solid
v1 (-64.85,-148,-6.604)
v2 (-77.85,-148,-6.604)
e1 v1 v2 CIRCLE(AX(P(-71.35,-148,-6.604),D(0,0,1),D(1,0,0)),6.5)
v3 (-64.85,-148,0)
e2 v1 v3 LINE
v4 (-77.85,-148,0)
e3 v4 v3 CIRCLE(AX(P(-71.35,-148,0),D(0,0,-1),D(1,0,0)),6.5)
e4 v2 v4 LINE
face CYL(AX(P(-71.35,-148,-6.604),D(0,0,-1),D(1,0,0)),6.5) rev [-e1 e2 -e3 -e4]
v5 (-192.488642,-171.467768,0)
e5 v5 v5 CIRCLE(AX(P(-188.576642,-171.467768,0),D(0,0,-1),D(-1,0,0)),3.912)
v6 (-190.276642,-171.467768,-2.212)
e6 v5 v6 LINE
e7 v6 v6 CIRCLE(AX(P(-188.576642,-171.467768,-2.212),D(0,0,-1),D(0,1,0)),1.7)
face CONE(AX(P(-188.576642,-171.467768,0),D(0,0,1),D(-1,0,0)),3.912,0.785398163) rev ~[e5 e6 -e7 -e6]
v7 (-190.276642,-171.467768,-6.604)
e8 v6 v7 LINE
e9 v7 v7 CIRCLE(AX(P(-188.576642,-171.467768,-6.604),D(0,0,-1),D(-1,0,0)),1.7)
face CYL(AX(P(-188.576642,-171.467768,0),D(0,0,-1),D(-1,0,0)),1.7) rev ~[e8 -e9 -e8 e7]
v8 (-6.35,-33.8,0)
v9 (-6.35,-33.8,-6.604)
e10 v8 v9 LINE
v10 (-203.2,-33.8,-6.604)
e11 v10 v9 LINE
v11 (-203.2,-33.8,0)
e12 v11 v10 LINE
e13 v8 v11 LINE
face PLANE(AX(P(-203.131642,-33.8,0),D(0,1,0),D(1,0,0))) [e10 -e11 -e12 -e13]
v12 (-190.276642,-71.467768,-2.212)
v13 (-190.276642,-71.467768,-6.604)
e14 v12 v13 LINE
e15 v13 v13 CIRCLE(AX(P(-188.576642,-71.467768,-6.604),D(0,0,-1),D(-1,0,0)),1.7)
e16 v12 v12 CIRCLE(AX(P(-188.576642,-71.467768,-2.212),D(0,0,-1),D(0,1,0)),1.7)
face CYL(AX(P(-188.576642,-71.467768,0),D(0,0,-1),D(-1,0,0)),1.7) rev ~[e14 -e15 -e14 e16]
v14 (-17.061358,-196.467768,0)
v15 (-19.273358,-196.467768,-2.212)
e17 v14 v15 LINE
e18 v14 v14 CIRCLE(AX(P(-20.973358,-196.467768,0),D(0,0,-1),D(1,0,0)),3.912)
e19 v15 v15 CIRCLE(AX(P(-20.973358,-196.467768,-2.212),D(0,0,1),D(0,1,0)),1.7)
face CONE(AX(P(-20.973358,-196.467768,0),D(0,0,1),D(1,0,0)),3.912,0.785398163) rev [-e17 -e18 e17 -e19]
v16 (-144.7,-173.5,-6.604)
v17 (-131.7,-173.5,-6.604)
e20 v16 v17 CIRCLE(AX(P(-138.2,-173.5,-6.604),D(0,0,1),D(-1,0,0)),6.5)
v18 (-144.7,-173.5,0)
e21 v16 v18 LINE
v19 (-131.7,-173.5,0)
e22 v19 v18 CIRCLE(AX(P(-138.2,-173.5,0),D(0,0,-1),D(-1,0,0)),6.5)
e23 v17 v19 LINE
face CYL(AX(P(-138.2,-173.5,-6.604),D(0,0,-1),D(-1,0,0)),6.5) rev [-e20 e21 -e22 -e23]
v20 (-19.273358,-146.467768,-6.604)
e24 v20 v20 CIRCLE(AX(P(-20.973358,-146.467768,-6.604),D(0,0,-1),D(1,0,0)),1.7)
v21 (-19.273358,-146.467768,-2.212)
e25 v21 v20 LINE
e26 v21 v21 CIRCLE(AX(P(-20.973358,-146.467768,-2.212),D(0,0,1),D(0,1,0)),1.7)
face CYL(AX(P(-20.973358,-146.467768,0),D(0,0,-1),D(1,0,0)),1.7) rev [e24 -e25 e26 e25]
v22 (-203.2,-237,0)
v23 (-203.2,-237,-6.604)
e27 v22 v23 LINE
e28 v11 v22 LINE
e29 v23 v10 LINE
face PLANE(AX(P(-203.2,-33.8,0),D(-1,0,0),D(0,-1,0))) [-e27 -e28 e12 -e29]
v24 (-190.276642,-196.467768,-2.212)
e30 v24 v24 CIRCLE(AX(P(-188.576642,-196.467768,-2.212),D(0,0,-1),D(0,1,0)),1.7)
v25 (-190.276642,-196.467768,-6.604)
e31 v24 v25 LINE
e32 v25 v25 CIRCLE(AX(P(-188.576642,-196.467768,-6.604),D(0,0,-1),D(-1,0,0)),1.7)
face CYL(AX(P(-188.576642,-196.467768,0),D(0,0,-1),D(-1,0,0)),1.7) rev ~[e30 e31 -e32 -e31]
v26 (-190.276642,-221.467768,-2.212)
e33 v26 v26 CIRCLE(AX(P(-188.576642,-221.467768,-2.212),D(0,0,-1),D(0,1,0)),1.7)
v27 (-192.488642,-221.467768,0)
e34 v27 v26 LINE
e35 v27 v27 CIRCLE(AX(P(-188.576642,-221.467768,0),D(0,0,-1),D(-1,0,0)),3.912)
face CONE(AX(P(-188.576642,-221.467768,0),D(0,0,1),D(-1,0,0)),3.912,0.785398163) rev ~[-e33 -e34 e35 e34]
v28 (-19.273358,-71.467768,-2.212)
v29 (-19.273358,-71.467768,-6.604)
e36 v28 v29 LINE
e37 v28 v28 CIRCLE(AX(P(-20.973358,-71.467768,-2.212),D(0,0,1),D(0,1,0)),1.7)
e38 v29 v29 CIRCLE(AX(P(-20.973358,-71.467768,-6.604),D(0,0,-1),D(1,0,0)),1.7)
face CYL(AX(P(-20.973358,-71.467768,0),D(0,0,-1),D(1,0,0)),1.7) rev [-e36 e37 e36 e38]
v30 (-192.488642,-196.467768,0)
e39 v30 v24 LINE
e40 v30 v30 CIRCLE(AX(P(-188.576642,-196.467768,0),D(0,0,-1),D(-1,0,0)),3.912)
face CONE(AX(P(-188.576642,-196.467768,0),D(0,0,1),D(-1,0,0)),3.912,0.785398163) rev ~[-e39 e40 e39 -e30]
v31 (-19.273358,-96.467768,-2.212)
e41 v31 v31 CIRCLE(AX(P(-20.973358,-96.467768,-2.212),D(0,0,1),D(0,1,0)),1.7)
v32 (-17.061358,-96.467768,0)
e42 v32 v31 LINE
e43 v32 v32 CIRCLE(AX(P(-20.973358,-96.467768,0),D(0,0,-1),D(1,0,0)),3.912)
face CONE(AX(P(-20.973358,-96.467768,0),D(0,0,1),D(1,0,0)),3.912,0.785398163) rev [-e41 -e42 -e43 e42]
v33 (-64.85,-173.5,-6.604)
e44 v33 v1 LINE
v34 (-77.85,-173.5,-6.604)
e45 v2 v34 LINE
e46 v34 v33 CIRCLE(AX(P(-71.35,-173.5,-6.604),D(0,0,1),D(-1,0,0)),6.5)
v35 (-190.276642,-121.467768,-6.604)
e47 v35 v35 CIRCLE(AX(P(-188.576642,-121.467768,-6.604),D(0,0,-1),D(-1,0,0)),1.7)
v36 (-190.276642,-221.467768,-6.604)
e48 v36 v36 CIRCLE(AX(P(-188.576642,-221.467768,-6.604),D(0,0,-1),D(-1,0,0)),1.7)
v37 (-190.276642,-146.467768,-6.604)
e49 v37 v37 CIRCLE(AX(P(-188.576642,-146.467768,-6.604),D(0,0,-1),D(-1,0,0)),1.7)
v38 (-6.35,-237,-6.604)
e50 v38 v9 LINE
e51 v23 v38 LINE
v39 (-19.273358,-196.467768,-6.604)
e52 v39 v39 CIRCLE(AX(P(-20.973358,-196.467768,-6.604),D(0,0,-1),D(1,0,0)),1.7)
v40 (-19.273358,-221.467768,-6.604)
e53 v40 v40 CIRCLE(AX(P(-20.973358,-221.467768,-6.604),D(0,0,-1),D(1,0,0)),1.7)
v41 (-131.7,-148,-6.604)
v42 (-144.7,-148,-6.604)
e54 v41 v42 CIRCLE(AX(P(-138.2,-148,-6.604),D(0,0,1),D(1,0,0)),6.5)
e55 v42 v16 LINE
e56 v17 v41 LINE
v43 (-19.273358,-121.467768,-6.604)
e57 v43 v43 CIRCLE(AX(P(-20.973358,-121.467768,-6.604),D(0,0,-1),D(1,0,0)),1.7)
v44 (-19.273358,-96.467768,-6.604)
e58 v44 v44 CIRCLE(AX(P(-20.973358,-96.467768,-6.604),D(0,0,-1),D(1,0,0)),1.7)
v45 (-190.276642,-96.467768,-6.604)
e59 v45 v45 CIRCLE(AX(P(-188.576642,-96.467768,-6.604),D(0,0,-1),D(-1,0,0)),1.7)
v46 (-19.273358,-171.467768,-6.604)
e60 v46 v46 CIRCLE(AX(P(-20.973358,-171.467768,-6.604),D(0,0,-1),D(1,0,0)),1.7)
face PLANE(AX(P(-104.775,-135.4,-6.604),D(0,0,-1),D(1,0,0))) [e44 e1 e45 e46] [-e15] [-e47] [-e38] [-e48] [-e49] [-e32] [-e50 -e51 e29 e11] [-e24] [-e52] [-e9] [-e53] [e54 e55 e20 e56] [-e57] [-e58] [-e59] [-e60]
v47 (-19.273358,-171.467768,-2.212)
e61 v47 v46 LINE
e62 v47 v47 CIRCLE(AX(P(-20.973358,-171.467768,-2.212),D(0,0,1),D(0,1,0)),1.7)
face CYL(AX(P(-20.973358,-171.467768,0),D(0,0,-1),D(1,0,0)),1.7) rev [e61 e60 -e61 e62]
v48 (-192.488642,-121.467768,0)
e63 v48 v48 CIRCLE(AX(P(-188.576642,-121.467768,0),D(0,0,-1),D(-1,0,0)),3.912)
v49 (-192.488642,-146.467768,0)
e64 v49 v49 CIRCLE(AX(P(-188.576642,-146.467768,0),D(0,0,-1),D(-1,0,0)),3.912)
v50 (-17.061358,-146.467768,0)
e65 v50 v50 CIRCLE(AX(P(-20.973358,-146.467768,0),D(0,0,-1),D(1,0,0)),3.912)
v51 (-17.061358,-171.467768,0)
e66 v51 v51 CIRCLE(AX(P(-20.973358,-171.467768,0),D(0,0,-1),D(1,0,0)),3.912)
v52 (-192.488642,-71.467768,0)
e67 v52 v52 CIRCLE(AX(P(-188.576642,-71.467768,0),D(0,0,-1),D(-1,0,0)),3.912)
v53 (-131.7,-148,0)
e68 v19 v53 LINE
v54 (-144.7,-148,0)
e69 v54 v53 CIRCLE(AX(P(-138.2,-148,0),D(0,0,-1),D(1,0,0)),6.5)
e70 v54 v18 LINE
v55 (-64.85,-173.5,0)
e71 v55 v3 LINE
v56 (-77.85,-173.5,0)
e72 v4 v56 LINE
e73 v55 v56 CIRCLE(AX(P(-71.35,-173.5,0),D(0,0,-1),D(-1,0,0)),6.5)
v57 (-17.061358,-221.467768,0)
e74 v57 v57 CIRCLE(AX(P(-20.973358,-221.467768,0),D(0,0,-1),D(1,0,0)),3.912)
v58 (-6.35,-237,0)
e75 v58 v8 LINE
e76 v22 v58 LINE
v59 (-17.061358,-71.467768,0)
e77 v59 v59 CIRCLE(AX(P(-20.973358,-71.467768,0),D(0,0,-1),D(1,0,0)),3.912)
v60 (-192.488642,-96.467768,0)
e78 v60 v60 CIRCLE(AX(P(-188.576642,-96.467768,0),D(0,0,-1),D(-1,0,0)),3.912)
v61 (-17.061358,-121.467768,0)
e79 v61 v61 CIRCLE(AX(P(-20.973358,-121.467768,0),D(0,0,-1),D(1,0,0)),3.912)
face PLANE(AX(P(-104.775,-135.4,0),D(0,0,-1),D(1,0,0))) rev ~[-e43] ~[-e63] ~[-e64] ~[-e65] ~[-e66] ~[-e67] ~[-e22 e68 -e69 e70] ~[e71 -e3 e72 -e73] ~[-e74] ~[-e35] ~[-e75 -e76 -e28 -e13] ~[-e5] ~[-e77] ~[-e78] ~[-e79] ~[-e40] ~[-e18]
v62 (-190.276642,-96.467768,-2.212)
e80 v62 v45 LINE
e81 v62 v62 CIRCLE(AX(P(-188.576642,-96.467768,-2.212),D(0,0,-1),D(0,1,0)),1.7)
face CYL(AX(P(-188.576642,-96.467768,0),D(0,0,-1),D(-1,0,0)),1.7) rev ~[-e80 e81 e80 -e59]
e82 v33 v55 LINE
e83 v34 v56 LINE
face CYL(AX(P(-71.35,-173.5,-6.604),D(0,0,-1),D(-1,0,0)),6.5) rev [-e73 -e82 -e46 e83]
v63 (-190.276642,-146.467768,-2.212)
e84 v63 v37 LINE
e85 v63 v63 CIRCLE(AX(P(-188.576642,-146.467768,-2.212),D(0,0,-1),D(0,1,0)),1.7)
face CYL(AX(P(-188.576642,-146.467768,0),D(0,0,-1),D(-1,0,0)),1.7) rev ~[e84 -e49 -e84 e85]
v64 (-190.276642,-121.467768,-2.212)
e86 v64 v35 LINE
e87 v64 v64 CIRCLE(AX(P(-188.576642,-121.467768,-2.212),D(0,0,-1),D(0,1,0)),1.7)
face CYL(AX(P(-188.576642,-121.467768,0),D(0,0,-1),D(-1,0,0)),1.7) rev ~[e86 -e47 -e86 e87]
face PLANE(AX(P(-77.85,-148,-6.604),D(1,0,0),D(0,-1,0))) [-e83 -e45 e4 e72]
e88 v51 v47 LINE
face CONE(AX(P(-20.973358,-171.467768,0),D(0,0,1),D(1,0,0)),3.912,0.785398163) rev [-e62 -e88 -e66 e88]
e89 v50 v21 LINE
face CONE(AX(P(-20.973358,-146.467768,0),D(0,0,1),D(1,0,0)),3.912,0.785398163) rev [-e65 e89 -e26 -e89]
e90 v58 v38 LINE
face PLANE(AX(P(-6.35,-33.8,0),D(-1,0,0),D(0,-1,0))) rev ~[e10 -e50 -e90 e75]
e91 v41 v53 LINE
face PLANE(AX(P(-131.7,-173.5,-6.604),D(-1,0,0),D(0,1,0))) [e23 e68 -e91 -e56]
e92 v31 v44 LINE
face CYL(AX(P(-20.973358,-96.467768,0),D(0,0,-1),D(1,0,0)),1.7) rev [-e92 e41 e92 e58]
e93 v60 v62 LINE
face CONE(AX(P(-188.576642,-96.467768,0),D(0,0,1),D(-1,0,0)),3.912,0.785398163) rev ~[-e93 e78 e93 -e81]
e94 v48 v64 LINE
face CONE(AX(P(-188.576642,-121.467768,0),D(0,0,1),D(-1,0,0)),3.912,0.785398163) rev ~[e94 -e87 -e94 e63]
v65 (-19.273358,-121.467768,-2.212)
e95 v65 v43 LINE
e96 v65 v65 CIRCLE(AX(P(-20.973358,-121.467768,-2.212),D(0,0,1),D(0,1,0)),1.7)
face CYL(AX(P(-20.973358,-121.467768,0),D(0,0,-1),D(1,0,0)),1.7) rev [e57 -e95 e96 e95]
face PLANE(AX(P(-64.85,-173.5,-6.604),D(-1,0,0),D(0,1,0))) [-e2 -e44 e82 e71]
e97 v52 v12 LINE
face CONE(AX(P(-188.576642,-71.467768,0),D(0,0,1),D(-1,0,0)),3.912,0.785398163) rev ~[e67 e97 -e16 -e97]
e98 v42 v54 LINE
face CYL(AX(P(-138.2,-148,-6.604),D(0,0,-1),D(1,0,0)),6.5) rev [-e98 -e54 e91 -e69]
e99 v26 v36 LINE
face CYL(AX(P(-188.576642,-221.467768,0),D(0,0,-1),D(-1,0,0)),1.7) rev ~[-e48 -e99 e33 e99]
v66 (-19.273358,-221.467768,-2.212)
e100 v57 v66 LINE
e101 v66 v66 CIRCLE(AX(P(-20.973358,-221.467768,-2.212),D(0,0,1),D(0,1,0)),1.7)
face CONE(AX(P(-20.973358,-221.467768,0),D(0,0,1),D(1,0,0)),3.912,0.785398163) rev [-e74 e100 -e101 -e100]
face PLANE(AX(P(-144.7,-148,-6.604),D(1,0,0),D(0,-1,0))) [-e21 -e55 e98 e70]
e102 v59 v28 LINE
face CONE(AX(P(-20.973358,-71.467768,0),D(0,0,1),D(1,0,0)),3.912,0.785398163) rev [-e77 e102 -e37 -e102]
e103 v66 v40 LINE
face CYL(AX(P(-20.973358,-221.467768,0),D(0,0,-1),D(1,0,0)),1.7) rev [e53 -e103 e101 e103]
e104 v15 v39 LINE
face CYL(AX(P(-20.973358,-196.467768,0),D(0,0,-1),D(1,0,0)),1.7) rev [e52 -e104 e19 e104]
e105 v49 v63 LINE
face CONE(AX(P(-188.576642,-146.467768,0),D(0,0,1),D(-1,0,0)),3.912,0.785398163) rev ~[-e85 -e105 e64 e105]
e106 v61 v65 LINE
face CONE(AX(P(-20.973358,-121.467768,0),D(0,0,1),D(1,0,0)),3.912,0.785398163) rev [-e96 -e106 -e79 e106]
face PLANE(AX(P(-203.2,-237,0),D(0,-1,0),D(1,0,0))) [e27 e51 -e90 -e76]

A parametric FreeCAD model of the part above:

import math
import FreeCAD as App
import Part
import Sketcher
from FreeCAD import Vector
Q = App.Units.Quantity

doc = App.newDocument("Part")
body = doc.addObject("PartDesign::Body", "Body")

# Sketch on XY plane
sketch1 = body.newObject("Sketcher::SketchObject", "Sketch")
sketch1.AttachmentSupport = (doc.getObject("XY_Plane"), [""])
sketch1.MapMode = "FlatFace"
sketch1.addGeometry([
    Part.LineSegment(Vector(-203, -237, 0), Vector(-203, -34, 0)),
    Part.LineSegment(Vector(-203, -34, 0), Vector(-6, -34, 0)),
    Part.LineSegment(Vector(-6, -34, 0), Vector(-6, -237, 0)),
    Part.LineSegment(Vector(-6, -237, 0), Vector(-203, -237, 0)),
], False)
sketch1.addConstraint([
    Sketcher.Constraint("Coincident", 0, 2, 1, 1),
    Sketcher.Constraint("Coincident", 1, 2, 2, 1),
    Sketcher.Constraint("Coincident", 2, 2, 3, 1),
    Sketcher.Constraint("Coincident", 3, 2, 0, 1),
    Sketcher.Constraint("Vertical", 0),
    Sketcher.Constraint("Horizontal", 1),
    Sketcher.Constraint("Vertical", 2),
    Sketcher.Constraint("Horizontal", 3),
    Sketcher.Constraint("DistanceY", 0, 1, 0, 2, Q("8 in")),
    Sketcher.Constraint("DistanceX", 0, 2, -1, 1, Q("8 in")),
    Sketcher.Constraint("DistanceX", 1, 1, 1, 2, Q("7.75 in")),
    Sketcher.Constraint("DistanceY", 0, 2, -1, 1, 33.8),
])
pad1 = body.newObject("PartDesign::Pad", "Pad")
pad1.Profile = sketch1
pad1.Length = Q("0.26 in")
pad1.Reversed = True

# Sketch on XY plane
sketch2 = body.newObject("Sketcher::SketchObject", "Sketch001")
sketch2.AttachmentSupport = (doc.getObject("XY_Plane"), [""])
sketch2.MapMode = "FlatFace"
sketch2.AttachmentOffset = App.Placement(Vector(0, 0, -0.26 * 25.4), App.Rotation())
sketch2.addGeometry([
    Part.LineSegment(Vector(-132, -148, 0), Vector(-132, -174, 0)),  # 0
    Part.ArcOfCircle(Part.Circle(Vector(-138, -174, 0), Vector(0, 0, 1), 6), math.radians(180), math.radians(360)),  # 1
    Part.LineSegment(Vector(-145, -174, 0), Vector(-145, -148, 0)),  # 2
    Part.ArcOfCircle(Part.Circle(Vector(-138, -148, 0), Vector(0, 0, 1), 6), math.radians(0), math.radians(180)),  # 3
    Part.LineSegment(Vector(-65, -148, 0), Vector(-65, -174, 0)),  # 4
    Part.ArcOfCircle(Part.Circle(Vector(-71, -174, 0), Vector(0, 0, 1), 6), math.radians(180), math.radians(360)),  # 5
    Part.LineSegment(Vector(-78, -174, 0), Vector(-78, -148, 0)),  # 6
    Part.ArcOfCircle(Part.Circle(Vector(-71, -148, 0), Vector(0, 0, 1), 6), math.radians(0), math.radians(180)),  # 7
], False)
sketch2.addConstraint([
    Sketcher.Constraint("Tangent", 0, 2, 1, 2),
    Sketcher.Constraint("Tangent", 1, 1, 2, 1),
    Sketcher.Constraint("Tangent", 2, 2, 3, 2),
    Sketcher.Constraint("Tangent", 3, 1, 0, 1),
    Sketcher.Constraint("Tangent", 4, 2, 5, 2),
    Sketcher.Constraint("Tangent", 5, 1, 6, 1),
    Sketcher.Constraint("Tangent", 6, 2, 7, 2),
    Sketcher.Constraint("Tangent", 7, 1, 4, 1),
    Sketcher.Constraint("Vertical", 0),
    Sketcher.Constraint("Vertical", 2),
    Sketcher.Constraint("Vertical", 4),
    Sketcher.Constraint("Vertical", 6),
    Sketcher.Constraint("Equal", 3, 5),
    Sketcher.Constraint("Horizontal", 1, 3, 5, 3),
    Sketcher.Constraint("Horizontal", 3, 3, 7, 3),
    Sketcher.Constraint("Radius", 1, 6.5),
    Sketcher.Constraint("DistanceY", 0, 2, 0, 1, 25.5),
    Sketcher.Constraint("DistanceX", 1, 3, -1, 1, 138.2),
    Sketcher.Constraint("DistanceY", 1, 3, -1, 1, 173.5),
    Sketcher.Constraint("DistanceX", 5, 3, -1, 1, 71.35),
])
pocket1 = body.newObject("PartDesign::Pocket", "Pocket")
pocket1.Profile = sketch2
pocket1.Type = "ThroughAll"
pocket1.Reversed = True

# Sketch on XY plane
sketch3 = body.newObject("Sketcher::SketchObject", "Sketch002")
sketch3.AttachmentSupport = (doc.getObject("XY_Plane"), [""])
sketch3.MapMode = "FlatFace"
sketch3.addGeometry([
    Part.LineSegment(Vector(-203.1, -33.8, 0), Vector(-203.1, -34.4, 0)),
    Part.LineSegment(Vector(-203.1, -34.4, 0), Vector(-6.3, -34.4, 0)),
    Part.LineSegment(Vector(-6.3, -34.4, 0), Vector(-6.3, -33.8, 0)),
    Part.LineSegment(Vector(-6.3, -33.8, 0), Vector(-203.1, -33.8, 0)),
], False)
sketch3.addConstraint([
    Sketcher.Constraint("Coincident", 0, 2, 1, 1),
    Sketcher.Constraint("Coincident", 1, 2, 2, 1),
    Sketcher.Constraint("Coincident", 2, 2, 3, 1),
    Sketcher.Constraint("Coincident", 3, 2, 0, 1),
    Sketcher.Constraint("Vertical", 0),
    Sketcher.Constraint("Horizontal", 1),
    Sketcher.Constraint("Vertical", 2),
    Sketcher.Constraint("Horizontal", 3),
    Sketcher.Constraint("DistanceX", 1, 1, 1, 2, Q("7.75 in")),
    Sketcher.Constraint("DistanceY", 0, 2, 0, 1, Q("0.024 in")),
    Sketcher.Constraint("DistanceY", 0, 2, -1, 1, 34.4096),
    Sketcher.Constraint("DistanceX", 0, 2, -1, 1, 203.131642),
])
pad2 = body.newObject("PartDesign::Pad", "Pad001")
pad2.Profile = sketch3
pad2.Length = 12

# Sketch on XY plane
sketch4 = body.newObject("Sketcher::SketchObject", "Sketch003")
sketch4.AttachmentSupport = (doc.getObject("XY_Plane"), [""])
sketch4.MapMode = "FlatFace"
sketch4.addGeometry([
    Part.LineSegment(Vector(-203, -48, 0), Vector(-203, -60, 0)),
    Part.LineSegment(Vector(-203, -60, 0), Vector(-6, -60, 0)),
    Part.LineSegment(Vector(-6, -60, 0), Vector(-6, -48, 0)),
    Part.LineSegment(Vector(-6, -48, 0), Vector(-203, -48, 0)),
], False)
sketch4.addConstraint([
    Sketcher.Constraint("Coincident", 0, 2, 1, 1),
    Sketcher.Constraint("Coincident", 1, 2, 2, 1),
    Sketcher.Constraint("Coincident", 2, 2, 3, 1),
    Sketcher.Constraint("Coincident", 3, 2, 0, 1),
    Sketcher.Constraint("Vertical", 0),
    Sketcher.Constraint("Horizontal", 1),
    Sketcher.Constraint("Vertical", 2),
    Sketcher.Constraint("Horizontal", 3),
    Sketcher.Constraint("DistanceX", 0, 2, -1, 1, Q("8 in")),
    Sketcher.Constraint("DistanceX", 1, 1, 1, 2, Q("7.75 in")),
    Sketcher.Constraint("DistanceY", 0, 2, 0, 1, Q("0.47 in")),
    Sketcher.Constraint("DistanceY", 0, 2, -1, 1, 59.904004),
])
pad3 = body.newObject("PartDesign::Pad", "Pad002")
pad3.Profile = sketch4
pad3.Length = Q("0.26 in")
pad3.Reversed = True

# Sketch on XY plane
sketch5 = body.newObject("Sketcher::SketchObject", "Sketch004")
sketch5.AttachmentSupport = (doc.getObject("XY_Plane"), [""])
sketch5.MapMode = "FlatFace"
sketch5.AttachmentOffset = App.Placement(Vector(0, 0, 12), App.Rotation())
sketch5.addGeometry([
    Part.LineSegment(Vector(-203.1, -33.8, 0), Vector(-203.1, -34.4, 0)),
    Part.LineSegment(Vector(-203.1, -34.4, 0), Vector(-6.3, -34.4, 0)),
    Part.LineSegment(Vector(-6.3, -34.4, 0), Vector(-6.3, -33.8, 0)),
    Part.LineSegment(Vector(-6.3, -33.8, 0), Vector(-203.1, -33.8, 0)),
], False)
sketch5.addConstraint([
    Sketcher.Constraint("Coincident", 0, 2, 1, 1),
    Sketcher.Constraint("Coincident", 1, 2, 2, 1),
    Sketcher.Constraint("Coincident", 2, 2, 3, 1),
    Sketcher.Constraint("Coincident", 3, 2, 0, 1),
    Sketcher.Constraint("Vertical", 0),
    Sketcher.Constraint("Horizontal", 1),
    Sketcher.Constraint("Vertical", 2),
    Sketcher.Constraint("Horizontal", 3),
    Sketcher.Constraint("DistanceX", 1, 1, 1, 2, Q("7.75 in")),
    Sketcher.Constraint("DistanceY", 0, 2, 0, 1, Q("0.024 in")),
    Sketcher.Constraint("DistanceY", 0, 2, -1, 1, 34.4096),
    Sketcher.Constraint("DistanceX", 0, 2, -1, 1, 203.131642),
])
pocket2 = body.newObject("PartDesign::Pocket", "Pocket001")
pocket2.Profile = sketch5
pocket2.Length = 12

# Sketch on XY plane
sketch6 = body.newObject("Sketcher::SketchObject", "Sketch005")
sketch6.AttachmentSupport = (doc.getObject("XY_Plane"), [""])
sketch6.MapMode = "FlatFace"
sketch6.addGeometry([
    Part.Circle(Vector(-188.6, -71.5, 0), Vector(0, 0, 1), 1.7),  # 0
    Part.Circle(Vector(-188.6, -221.5, 0), Vector(0, 0, 1), 1.7),  # 1
    Part.Circle(Vector(-188.6, -196.5, 0), Vector(0, 0, 1), 1.7),  # 2
    Part.Circle(Vector(-188.6, -171.5, 0), Vector(0, 0, 1), 1.7),  # 3
    Part.Circle(Vector(-188.6, -146.5, 0), Vector(0, 0, 1), 1.7),  # 4
    Part.Circle(Vector(-188.6, -121.5, 0), Vector(0, 0, 1), 1.7),  # 5
    Part.Circle(Vector(-188.6, -96.5, 0), Vector(0, 0, 1), 1.7),  # 6
], False)
sketch6.addConstraint([
    Sketcher.Constraint("Equal", 0, 1),
    Sketcher.Constraint("Equal", 1, 2),
    Sketcher.Constraint("Equal", 2, 3),
    Sketcher.Constraint("Equal", 3, 4),
    Sketcher.Constraint("Equal", 4, 5),
    Sketcher.Constraint("Equal", 5, 6),
    Sketcher.Constraint("Vertical", 0, 3, 1, 3),
    Sketcher.Constraint("Vertical", 1, 3, 2, 3),
    Sketcher.Constraint("Vertical", 2, 3, 3, 3),
    Sketcher.Constraint("Vertical", 3, 3, 4, 3),
    Sketcher.Constraint("Vertical", 4, 3, 5, 3),
    Sketcher.Constraint("Vertical", 5, 3, 6, 3),
    Sketcher.Constraint("Diameter", 0, 3.4),
    Sketcher.Constraint("DistanceY", 1, 3, 0, 3, 150.0),
    Sketcher.Constraint("DistanceY", 1, 3, 2, 3, 25.0),
    Sketcher.Constraint("DistanceY", 2, 3, 3, 3, 25.0),
    Sketcher.Constraint("DistanceY", 3, 3, 4, 3, 25.0),
    Sketcher.Constraint("DistanceY", 4, 3, 5, 3, 25.0),
    Sketcher.Constraint("DistanceY", 6, 3, 0, 3, 25.0),
    Sketcher.Constraint("DistanceX", 0, 3, -1, 1, 188.576642),
    Sketcher.Constraint("DistanceY", 0, 3, -1, 1, 71.467768),
])
doc.recompute()
hole = body.newObject("PartDesign::Hole", "Hole")
hole.Profile = sketch6
hole.ThreadType = "None"
hole.Diameter = 3.4
hole.DepthType = "ThroughAll"
hole.HoleCutType = "Countersink"
hole.HoleCutDiameter = 7.824
hole.HoleCutCountersinkAngle = 90
doc.recompute()

datumplane = body.newObject("PartDesign::Plane", "DatumPlane")
datumplane.AttachmentSupport = (doc.getObject("YZ_Plane"), [""])
datumplane.MapMode = "FlatFace"
datumplane.AttachmentOffset = App.Placement(Vector(0, 0, -4.125 * 25.4), App.Rotation())
mirrored = body.newObject("PartDesign::Mirrored", "Mirrored")
mirrored.Originals = [hole]
mirrored.MirrorPlane = (datumplane, [""])
body.Tip = mirrored

doc.recompute()
